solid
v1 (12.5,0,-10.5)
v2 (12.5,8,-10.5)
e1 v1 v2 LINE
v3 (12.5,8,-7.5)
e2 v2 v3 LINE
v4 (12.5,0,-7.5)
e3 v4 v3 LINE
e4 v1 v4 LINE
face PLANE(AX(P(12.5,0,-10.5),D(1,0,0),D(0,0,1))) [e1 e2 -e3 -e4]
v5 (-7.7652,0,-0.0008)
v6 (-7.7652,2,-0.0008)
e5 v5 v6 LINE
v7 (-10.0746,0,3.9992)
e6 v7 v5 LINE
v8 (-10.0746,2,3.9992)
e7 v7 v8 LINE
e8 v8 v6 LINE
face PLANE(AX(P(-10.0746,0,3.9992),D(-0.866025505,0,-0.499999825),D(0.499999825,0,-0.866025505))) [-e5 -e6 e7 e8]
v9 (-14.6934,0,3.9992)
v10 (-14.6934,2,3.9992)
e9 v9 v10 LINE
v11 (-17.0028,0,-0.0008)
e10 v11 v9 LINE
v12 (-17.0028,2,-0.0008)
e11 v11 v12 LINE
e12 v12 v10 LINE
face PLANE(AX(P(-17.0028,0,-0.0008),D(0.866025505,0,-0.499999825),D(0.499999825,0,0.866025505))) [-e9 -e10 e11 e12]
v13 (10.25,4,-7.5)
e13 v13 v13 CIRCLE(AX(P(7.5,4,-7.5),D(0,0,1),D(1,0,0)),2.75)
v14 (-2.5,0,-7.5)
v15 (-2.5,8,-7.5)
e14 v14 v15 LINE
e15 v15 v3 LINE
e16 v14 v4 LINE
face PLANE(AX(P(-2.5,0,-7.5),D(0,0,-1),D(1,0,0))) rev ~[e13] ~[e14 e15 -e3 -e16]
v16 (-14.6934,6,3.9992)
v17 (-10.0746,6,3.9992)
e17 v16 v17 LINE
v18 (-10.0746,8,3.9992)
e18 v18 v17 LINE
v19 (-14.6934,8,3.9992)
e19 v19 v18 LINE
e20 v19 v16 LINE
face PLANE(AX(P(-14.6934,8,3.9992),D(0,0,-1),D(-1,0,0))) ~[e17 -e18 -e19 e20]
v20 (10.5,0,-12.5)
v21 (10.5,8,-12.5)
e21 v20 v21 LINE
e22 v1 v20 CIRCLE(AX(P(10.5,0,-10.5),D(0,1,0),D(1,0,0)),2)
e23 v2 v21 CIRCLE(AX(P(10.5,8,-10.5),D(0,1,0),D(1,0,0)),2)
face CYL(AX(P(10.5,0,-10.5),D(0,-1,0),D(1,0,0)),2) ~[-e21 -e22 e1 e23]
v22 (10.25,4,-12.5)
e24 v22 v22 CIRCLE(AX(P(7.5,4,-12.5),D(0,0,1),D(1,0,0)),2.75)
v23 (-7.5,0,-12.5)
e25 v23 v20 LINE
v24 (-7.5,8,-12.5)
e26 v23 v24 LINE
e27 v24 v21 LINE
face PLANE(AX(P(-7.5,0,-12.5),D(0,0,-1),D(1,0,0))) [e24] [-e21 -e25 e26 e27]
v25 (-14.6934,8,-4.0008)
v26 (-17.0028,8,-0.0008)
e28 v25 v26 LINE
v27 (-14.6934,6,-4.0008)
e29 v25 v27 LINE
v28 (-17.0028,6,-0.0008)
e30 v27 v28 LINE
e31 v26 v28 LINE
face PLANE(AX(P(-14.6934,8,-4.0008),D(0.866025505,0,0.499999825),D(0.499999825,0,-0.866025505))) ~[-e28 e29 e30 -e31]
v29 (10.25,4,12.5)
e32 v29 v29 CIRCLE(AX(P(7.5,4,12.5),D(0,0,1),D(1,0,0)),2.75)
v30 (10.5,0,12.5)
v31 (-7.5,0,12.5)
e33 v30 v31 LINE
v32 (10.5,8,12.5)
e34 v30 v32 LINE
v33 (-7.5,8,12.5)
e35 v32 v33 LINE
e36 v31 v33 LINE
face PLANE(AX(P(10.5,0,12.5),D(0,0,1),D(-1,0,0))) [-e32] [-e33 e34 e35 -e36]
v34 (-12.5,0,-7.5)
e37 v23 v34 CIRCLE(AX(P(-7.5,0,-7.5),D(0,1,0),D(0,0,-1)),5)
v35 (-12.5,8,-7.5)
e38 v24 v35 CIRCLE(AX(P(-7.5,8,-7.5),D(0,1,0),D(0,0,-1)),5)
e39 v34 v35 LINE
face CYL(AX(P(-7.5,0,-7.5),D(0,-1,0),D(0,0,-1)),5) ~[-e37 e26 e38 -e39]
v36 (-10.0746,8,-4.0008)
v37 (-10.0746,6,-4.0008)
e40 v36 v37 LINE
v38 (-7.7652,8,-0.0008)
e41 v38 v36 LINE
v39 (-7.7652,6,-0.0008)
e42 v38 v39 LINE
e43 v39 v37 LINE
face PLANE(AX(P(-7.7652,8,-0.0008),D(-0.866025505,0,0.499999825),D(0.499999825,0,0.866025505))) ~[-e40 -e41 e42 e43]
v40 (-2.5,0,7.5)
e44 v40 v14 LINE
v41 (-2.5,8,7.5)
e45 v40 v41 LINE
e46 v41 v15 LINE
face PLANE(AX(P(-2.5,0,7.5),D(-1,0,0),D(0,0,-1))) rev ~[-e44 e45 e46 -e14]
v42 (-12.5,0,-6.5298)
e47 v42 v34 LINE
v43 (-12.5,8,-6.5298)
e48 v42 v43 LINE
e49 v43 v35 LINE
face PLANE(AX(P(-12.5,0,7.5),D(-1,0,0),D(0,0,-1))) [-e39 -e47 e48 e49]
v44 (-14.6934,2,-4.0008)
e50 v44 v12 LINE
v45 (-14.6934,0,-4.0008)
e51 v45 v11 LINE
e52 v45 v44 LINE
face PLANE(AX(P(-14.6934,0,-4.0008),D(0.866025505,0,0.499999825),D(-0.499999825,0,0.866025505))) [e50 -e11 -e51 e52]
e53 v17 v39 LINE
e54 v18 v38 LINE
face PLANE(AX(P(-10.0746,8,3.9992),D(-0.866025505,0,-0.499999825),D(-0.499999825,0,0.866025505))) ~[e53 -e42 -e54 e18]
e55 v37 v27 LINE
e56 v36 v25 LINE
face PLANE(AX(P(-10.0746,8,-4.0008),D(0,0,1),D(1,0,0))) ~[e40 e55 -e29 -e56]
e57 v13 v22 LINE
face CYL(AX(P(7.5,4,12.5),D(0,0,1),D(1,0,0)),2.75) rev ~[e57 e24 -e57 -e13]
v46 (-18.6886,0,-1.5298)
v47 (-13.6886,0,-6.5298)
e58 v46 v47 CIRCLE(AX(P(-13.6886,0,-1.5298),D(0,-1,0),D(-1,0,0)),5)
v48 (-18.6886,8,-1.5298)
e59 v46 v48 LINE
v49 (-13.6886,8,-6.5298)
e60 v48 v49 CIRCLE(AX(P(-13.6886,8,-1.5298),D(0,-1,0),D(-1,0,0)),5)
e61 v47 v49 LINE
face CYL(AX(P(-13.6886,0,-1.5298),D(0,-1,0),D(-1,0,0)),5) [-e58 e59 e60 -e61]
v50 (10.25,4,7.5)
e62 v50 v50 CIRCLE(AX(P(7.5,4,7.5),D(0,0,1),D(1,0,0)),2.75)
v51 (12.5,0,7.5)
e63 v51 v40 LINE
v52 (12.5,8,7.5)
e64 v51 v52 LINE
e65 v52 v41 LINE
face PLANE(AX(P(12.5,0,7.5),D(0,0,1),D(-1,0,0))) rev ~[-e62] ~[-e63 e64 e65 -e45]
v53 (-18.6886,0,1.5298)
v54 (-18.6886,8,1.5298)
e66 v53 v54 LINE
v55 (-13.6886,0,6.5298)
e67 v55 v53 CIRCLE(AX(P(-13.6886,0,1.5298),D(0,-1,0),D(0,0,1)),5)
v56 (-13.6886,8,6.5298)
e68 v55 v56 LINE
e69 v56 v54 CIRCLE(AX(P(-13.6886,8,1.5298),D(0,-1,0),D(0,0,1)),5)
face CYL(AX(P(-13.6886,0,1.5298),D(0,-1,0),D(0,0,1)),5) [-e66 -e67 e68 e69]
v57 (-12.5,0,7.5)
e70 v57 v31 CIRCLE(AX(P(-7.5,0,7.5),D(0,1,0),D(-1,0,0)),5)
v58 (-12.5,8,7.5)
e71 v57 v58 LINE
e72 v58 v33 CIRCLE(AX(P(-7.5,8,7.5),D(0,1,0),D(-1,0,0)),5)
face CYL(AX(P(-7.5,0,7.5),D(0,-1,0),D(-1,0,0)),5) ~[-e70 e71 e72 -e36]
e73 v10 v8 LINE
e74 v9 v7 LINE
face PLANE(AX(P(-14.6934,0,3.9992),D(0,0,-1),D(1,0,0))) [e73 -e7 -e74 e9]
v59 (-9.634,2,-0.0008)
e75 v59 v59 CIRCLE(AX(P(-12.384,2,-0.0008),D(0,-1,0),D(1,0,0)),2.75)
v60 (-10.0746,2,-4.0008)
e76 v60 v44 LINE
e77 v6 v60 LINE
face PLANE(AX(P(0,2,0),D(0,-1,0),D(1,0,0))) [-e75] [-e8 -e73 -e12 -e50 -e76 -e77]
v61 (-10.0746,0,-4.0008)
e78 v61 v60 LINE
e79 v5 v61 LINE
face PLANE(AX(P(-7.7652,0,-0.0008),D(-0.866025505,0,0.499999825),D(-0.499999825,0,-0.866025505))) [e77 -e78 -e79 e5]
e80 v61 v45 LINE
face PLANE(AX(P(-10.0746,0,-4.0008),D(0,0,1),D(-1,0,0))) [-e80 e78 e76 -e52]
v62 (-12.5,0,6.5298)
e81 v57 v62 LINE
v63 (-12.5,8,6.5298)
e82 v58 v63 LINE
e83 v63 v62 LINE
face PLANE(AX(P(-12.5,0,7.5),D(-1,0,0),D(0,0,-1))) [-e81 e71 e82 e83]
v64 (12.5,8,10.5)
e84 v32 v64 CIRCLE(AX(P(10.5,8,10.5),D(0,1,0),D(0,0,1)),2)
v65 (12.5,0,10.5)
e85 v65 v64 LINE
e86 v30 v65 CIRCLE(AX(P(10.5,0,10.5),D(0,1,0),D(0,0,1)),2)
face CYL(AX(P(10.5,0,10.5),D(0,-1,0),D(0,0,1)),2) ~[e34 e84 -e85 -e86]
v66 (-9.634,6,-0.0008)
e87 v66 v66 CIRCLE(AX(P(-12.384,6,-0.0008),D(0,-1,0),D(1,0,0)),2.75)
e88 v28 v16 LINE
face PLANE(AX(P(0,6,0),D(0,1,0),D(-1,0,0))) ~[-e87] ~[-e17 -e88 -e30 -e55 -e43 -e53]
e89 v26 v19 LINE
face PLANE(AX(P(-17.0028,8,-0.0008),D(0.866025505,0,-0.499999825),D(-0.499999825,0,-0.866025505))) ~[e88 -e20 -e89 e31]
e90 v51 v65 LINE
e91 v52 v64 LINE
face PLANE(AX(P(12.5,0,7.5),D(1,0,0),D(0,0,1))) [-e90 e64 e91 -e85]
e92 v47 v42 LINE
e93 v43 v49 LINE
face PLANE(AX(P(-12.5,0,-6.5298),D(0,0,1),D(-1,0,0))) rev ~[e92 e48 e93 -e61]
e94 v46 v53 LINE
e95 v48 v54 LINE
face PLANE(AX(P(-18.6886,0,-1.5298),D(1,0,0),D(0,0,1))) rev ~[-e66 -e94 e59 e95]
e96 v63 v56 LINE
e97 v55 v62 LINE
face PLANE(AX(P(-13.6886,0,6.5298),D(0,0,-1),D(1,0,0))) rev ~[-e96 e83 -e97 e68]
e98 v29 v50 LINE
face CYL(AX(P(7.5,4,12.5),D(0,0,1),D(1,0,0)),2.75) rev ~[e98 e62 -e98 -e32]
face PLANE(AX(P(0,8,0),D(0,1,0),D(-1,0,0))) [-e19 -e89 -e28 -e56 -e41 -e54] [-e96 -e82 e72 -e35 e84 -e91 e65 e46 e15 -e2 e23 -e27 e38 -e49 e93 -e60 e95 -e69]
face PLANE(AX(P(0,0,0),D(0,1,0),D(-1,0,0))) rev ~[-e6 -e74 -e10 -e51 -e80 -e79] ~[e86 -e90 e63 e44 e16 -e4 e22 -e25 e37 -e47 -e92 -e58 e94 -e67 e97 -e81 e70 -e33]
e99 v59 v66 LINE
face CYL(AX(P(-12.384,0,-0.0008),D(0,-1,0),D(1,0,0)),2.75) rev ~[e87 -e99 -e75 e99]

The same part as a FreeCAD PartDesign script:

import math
import FreeCAD as App
import Part
import Sketcher
from FreeCAD import Vector
Q = App.Units.Quantity

doc = App.newDocument("Part")
body = doc.addObject("PartDesign::Body", "Body")

sketch1 = body.newObject("Sketcher::SketchObject", "Sketch")
sketch1.AttachmentSupport = (doc.getObject("XZ_Plane"), [""])
sketch1.MapMode = "FlatFace"
sketch1.addGeometry(Part.LineSegment(Vector(-7.5, 12.5, 0), Vector(10.5, 12.5, 0)), False)
sketch1.addGeometry(Part.ArcOfCircle(Part.Circle(Vector(10.5, 10.5, 0), Vector(0, 0, 1), 2), math.radians(0), math.radians(90)), False)
sketch1.addGeometry(Part.LineSegment(Vector(12.5, 10.5, 0), Vector(12.5, 7.5, 0)), False)
sketch1.addGeometry(Part.LineSegment(Vector(12.5, 7.5, 0), Vector(-2.5, 7.5, 0)), False)
sketch1.addGeometry(Part.LineSegment(Vector(-2.5, 7.5, 0), Vector(-2.5, -7.5, 0)), False)
sketch1.addGeometry(Part.LineSegment(Vector(-2.5, -7.5, 0), Vector(12.5, -7.5, 0)), False)
sketch1.addGeometry(Part.LineSegment(Vector(12.5, -7.5, 0), Vector(12.5, -10.5, 0)), False)
sketch1.addGeometry(Part.ArcOfCircle(Part.Circle(Vector(10.5, -10.5, 0), Vector(0, 0, 1), 2), math.radians(-90), math.radians(0)), False)
sketch1.addGeometry(Part.LineSegment(Vector(10.5, -12.5, 0), Vector(-7.5, -12.5, 0)), False)
sketch1.addGeometry(Part.ArcOfCircle(Part.Circle(Vector(-7.5, -7.5, 0), Vector(0, 0, 1), 5), math.radians(180), math.radians(270)), False)
sketch1.addGeometry(Part.LineSegment(Vector(-12.5, -7.5, 0), Vector(-12.5, 7.5, 0)), False)
sketch1.addGeometry(Part.ArcOfCircle(Part.Circle(Vector(-7.5, 7.5, 0), Vector(0, 0, 1), 5), math.radians(90), math.radians(180)), False)
sketch1.addConstraint(Sketcher.Constraint("Tangent", 0, 2, 1, 2))
sketch1.addConstraint(Sketcher.Constraint("Tangent", 1, 1, 2, 1))
sketch1.addConstraint(Sketcher.Constraint("Coincident", 2, 2, 3, 1))
sketch1.addConstraint(Sketcher.Constraint("Coincident", 3, 2, 4, 1))
sketch1.addConstraint(Sketcher.Constraint("Coincident", 4, 2, 5, 1))
sketch1.addConstraint(Sketcher.Constraint("Coincident", 5, 2, 6, 1))
sketch1.addConstraint(Sketcher.Constraint("Tangent", 6, 2, 7, 2))
sketch1.addConstraint(Sketcher.Constraint("Tangent", 7, 1, 8, 1))
sketch1.addConstraint(Sketcher.Constraint("Tangent", 8, 2, 9, 2))
sketch1.addConstraint(Sketcher.Constraint("Tangent", 9, 1, 10, 1))
sketch1.addConstraint(Sketcher.Constraint("Tangent", 10, 2, 11, 2))
sketch1.addConstraint(Sketcher.Constraint("Tangent", 11, 1, 0, 1))
sketch1.addConstraint(Sketcher.Constraint("Horizontal", 0))
sketch1.addConstraint(Sketcher.Constraint("Vertical", 2))
sketch1.addConstraint(Sketcher.Constraint("Horizontal", 3))
sketch1.addConstraint(Sketcher.Constraint("Vertical", 4))
sketch1.addConstraint(Sketcher.Constraint("Horizontal", 5))
sketch1.addConstraint(Sketcher.Constraint("Vertical", 6))
sketch1.addConstraint(Sketcher.Constraint("Horizontal", 8))
sketch1.addConstraint(Sketcher.Constraint("Vertical", 10))
sketch1.addConstraint(Sketcher.Constraint("Equal", 1, 7))
sketch1.addConstraint(Sketcher.Constraint("Equal", 9, 11))
sketch1.addConstraint(Sketcher.Constraint("Symmetric", 2, 2, 9, 1, -1, 1))
sketch1.addConstraint(Sketcher.Constraint("Symmetric", 5, 2, 10, 2, -1, 1))
sketch1.addConstraint(Sketcher.Constraint("Horizontal", 11, 3, 2, 2))
sketch1.addConstraint(Sketcher.Constraint("Equal", 5, 4))
sketch1.addConstraint(Sketcher.Constraint("Radius", 1, 2.0))
sketch1.addConstraint(Sketcher.Constraint("Radius", 9, 5.0))
sketch1.addConstraint(Sketcher.Constraint("DistanceX", 3, 2, 3, 1, 15.0))
sketch1.addConstraint(Sketcher.Constraint("DistanceX", 11, 3, 3, 2, 5.0))
pad1 = body.newObject("PartDesign::Pad", "Pad")
pad1.Profile = sketch1
pad1.Length = 8
pad1.Reversed = True

sketch2 = body.newObject("Sketcher::SketchObject", "Sketch001")
sketch2.AttachmentSupport = (doc.getObject("XY_Plane"), [""])
sketch2.MapMode = "FlatFace"
sketch2.AttachmentOffset = App.Placement(Vector(0, 0, 12.5), App.Rotation())
sketch2.addGeometry(Part.Circle(Vector(7.5, 4, 0), Vector(0, 0, 1), 2.8), False)
sketch2.addConstraint(Sketcher.Constraint("Diameter", 0, 5.5))
sketch2.addConstraint(Sketcher.Constraint("DistanceY", -1, 1, 0, 3, 4.0))
sketch2.addConstraint(Sketcher.Constraint("DistanceX", -1, 1, 0, 3, 7.5))
pocket1 = body.newObject("PartDesign::Pocket", "Pocket")
pocket1.Profile = sketch2
pocket1.Length = 44.5

sketch3 = body.newObject("Sketcher::SketchObject", "Sketch002")
sketch3.AttachmentSupport = (doc.getObject("XZ_Plane"), [""])
sketch3.MapMode = "FlatFace"
sketch3.addGeometry(Part.ArcOfCircle(Part.Circle(Vector(-13.7, 1.5, 0), Vector(0, 0, 1), 5), math.radians(90), math.radians(180)), False)
sketch3.addGeometry(Part.LineSegment(Vector(-18.7, 1.5, 0), Vector(-18.7, -1.5, 0)), False)
sketch3.addGeometry(Part.ArcOfCircle(Part.Circle(Vector(-13.7, -1.5, 0), Vector(0, 0, 1), 5), math.radians(180), math.radians(270)), False)
sketch3.addGeometry(Part.LineSegment(Vector(-13.7, -6.5, 0), Vector(-6.3, -6.5, 0)), False)
sketch3.addGeometry(Part.LineSegment(Vector(-6.3, -6.5, 0), Vector(-6.3, 6.5, 0)), False)
sketch3.addGeometry(Part.LineSegment(Vector(-6.3, 6.5, 0), Vector(-13.7, 6.5, 0)), False)
sketch3.addConstraint(Sketcher.Constraint("Tangent", 0, 2, 1, 1))
sketch3.addConstraint(Sketcher.Constraint("Tangent", 1, 2, 2, 1))
sketch3.addConstraint(Sketcher.Constraint("Tangent", 2, 2, 3, 1))
sketch3.addConstraint(Sketcher.Constraint("Coincident", 3, 2, 4, 1))
sketch3.addConstraint(Sketcher.Constraint("Coincident", 4, 2, 5, 1))
sketch3.addConstraint(Sketcher.Constraint("Tangent", 5, 2, 0, 1))
sketch3.addConstraint(Sketcher.Constraint("Vertical", 1))
sketch3.addConstraint(Sketcher.Constraint("Horizontal", 3))
sketch3.addConstraint(Sketcher.Constraint("Vertical", 4))
sketch3.addConstraint(Sketcher.Constraint("Horizontal", 5))
sketch3.addConstraint(Sketcher.Constraint("Equal", 0, 2))
sketch3.addConstraint(Sketcher.Constraint("Radius", 0, 5.0))
sketch3.addConstraint(Sketcher.Constraint("DistanceX", 3, 1, 3, 2, 7.3772))
sketch3.addConstraint(Sketcher.Constraint("DistanceY", 1, 2, 1, 1, 3.0596))
sketch3.addConstraint(Sketcher.Constraint("DistanceX", 0, 3, -1, 1, 13.6886))
sketch3.addConstraint(Sketcher.Constraint("DistanceY", -1, 1, 0, 3, 1.5298))
pad2 = body.newObject("PartDesign::Pad", "Pad001")
pad2.Profile = sketch3
pad2.Length = 8
pad2.Reversed = True

sketch4 = body.newObject("Sketcher::SketchObject", "Sketch003")
sketch4.AttachmentSupport = (doc.getObject("XZ_Plane"), [""])
sketch4.MapMode = "FlatFace"
sketch4.addGeometry(Part.Circle(Vector(-12.4, 0, 0), Vector(0, 0, 1), 2.8), False)
sketch4.addConstraint(Sketcher.Constraint("Diameter", 0, 5.5))
sketch4.addConstraint(Sketcher.Constraint("DistanceX", 0, 3, -1, 1, 12.384))
sketch4.addConstraint(Sketcher.Constraint("DistanceY", 0, 3, -1, 1, 0.0008))
pocket2 = body.newObject("PartDesign::Pocket", "Pocket001")
pocket2.Profile = sketch4
pocket2.Length = 8

sketch5 = body.newObject("Sketcher::SketchObject", "Sketch004")
sketch5.AttachmentSupport = (doc.getObject("XZ_Plane"), [""])
sketch5.MapMode = "FlatFace"
sketch5.addGeometry(Part.LineSegment(Vector(-10.1, -4, 0), Vector(-7.8, 0, 0)), False)
sketch5.addGeometry(Part.LineSegment(Vector(-7.8, 0, 0), Vector(-10.1, 4, 0)), False)
sketch5.addGeometry(Part.LineSegment(Vector(-10.1, 4, 0), Vector(-14.7, 4, 0)), False)
sketch5.addGeometry(Part.LineSegment(Vector(-14.7, 4, 0), Vector(-17, 0, 0)), False)
sketch5.addGeometry(Part.LineSegment(Vector(-17, 0, 0), Vector(-14.7, -4, 0)), False)
sketch5.addGeometry(Part.LineSegment(Vector(-14.7, -4, 0), Vector(-10.1, -4, 0)), False)
sketch5.addConstraint(Sketcher.Constraint("Coincident", 0, 2, 1, 1))
sketch5.addConstraint(Sketcher.Constraint("Coincident", 1, 2, 2, 1))
sketch5.addConstraint(Sketcher.Constraint("Coincident", 2, 2, 3, 1))
sketch5.addConstraint(Sketcher.Constraint("Coincident", 3, 2, 4, 1))
sketch5.addConstraint(Sketcher.Constraint("Coincident", 4, 2, 5, 1))
sketch5.addConstraint(Sketcher.Constraint("Coincident", 5, 2, 0, 1))
sketch5.addConstraint(Sketcher.Constraint("Horizontal", 2))
sketch5.addConstraint(Sketcher.Constraint("Horizontal", 5))
sketch5.addConstraint(Sketcher.Constraint("Parallel", 0, 3))
sketch5.addConstraint(Sketcher.Constraint("Parallel", 1, 4))
sketch5.addConstraint(Sketcher.Constraint("Horizontal", 0, 2, 3, 2))
sketch5.addConstraint(Sketcher.Constraint("Vertical", 2, 2, 4, 2))
sketch5.addConstraint(Sketcher.Constraint("Vertical", 1, 2, 5, 2))
sketch5.addConstraint(Sketcher.Constraint("DistanceY", 4, 2, 2, 2, 8.0))
sketch5.addConstraint(Sketcher.Constraint("Angle", 0, Q("60 deg")))
sketch5.addConstraint(Sketcher.Constraint("DistanceX", 2, 2, 2, 1, 4.6188))
sketch5.addConstraint(Sketcher.Constraint("DistanceX", 0, 2, -1, 1, 7.7652))
sketch5.addConstraint(Sketcher.Constraint("DistanceY", 0, 2, -1, 1, 0.0008))
pocket3 = body.newObject("PartDesign::Pocket", "Pocket002")
pocket3.Profile = sketch5
pocket3.Length = 2
doc.recompute()

datumplane = body.newObject("PartDesign::Plane", "DatumPlane")
datumplane.AttachmentSupport = (doc.getObject("XZ_Plane"), [""])
datumplane.MapMode = "FlatFace"
datumplane.AttachmentOffset = App.Placement(Vector(0, 0, -4), App.Rotation())
mirrored = body.newObject("PartDesign::Mirrored", "Mirrored")
mirrored.Originals = [pocket3]
mirrored.MirrorPlane = (datumplane, [""])
body.Tip = mirrored

doc.recompute()
